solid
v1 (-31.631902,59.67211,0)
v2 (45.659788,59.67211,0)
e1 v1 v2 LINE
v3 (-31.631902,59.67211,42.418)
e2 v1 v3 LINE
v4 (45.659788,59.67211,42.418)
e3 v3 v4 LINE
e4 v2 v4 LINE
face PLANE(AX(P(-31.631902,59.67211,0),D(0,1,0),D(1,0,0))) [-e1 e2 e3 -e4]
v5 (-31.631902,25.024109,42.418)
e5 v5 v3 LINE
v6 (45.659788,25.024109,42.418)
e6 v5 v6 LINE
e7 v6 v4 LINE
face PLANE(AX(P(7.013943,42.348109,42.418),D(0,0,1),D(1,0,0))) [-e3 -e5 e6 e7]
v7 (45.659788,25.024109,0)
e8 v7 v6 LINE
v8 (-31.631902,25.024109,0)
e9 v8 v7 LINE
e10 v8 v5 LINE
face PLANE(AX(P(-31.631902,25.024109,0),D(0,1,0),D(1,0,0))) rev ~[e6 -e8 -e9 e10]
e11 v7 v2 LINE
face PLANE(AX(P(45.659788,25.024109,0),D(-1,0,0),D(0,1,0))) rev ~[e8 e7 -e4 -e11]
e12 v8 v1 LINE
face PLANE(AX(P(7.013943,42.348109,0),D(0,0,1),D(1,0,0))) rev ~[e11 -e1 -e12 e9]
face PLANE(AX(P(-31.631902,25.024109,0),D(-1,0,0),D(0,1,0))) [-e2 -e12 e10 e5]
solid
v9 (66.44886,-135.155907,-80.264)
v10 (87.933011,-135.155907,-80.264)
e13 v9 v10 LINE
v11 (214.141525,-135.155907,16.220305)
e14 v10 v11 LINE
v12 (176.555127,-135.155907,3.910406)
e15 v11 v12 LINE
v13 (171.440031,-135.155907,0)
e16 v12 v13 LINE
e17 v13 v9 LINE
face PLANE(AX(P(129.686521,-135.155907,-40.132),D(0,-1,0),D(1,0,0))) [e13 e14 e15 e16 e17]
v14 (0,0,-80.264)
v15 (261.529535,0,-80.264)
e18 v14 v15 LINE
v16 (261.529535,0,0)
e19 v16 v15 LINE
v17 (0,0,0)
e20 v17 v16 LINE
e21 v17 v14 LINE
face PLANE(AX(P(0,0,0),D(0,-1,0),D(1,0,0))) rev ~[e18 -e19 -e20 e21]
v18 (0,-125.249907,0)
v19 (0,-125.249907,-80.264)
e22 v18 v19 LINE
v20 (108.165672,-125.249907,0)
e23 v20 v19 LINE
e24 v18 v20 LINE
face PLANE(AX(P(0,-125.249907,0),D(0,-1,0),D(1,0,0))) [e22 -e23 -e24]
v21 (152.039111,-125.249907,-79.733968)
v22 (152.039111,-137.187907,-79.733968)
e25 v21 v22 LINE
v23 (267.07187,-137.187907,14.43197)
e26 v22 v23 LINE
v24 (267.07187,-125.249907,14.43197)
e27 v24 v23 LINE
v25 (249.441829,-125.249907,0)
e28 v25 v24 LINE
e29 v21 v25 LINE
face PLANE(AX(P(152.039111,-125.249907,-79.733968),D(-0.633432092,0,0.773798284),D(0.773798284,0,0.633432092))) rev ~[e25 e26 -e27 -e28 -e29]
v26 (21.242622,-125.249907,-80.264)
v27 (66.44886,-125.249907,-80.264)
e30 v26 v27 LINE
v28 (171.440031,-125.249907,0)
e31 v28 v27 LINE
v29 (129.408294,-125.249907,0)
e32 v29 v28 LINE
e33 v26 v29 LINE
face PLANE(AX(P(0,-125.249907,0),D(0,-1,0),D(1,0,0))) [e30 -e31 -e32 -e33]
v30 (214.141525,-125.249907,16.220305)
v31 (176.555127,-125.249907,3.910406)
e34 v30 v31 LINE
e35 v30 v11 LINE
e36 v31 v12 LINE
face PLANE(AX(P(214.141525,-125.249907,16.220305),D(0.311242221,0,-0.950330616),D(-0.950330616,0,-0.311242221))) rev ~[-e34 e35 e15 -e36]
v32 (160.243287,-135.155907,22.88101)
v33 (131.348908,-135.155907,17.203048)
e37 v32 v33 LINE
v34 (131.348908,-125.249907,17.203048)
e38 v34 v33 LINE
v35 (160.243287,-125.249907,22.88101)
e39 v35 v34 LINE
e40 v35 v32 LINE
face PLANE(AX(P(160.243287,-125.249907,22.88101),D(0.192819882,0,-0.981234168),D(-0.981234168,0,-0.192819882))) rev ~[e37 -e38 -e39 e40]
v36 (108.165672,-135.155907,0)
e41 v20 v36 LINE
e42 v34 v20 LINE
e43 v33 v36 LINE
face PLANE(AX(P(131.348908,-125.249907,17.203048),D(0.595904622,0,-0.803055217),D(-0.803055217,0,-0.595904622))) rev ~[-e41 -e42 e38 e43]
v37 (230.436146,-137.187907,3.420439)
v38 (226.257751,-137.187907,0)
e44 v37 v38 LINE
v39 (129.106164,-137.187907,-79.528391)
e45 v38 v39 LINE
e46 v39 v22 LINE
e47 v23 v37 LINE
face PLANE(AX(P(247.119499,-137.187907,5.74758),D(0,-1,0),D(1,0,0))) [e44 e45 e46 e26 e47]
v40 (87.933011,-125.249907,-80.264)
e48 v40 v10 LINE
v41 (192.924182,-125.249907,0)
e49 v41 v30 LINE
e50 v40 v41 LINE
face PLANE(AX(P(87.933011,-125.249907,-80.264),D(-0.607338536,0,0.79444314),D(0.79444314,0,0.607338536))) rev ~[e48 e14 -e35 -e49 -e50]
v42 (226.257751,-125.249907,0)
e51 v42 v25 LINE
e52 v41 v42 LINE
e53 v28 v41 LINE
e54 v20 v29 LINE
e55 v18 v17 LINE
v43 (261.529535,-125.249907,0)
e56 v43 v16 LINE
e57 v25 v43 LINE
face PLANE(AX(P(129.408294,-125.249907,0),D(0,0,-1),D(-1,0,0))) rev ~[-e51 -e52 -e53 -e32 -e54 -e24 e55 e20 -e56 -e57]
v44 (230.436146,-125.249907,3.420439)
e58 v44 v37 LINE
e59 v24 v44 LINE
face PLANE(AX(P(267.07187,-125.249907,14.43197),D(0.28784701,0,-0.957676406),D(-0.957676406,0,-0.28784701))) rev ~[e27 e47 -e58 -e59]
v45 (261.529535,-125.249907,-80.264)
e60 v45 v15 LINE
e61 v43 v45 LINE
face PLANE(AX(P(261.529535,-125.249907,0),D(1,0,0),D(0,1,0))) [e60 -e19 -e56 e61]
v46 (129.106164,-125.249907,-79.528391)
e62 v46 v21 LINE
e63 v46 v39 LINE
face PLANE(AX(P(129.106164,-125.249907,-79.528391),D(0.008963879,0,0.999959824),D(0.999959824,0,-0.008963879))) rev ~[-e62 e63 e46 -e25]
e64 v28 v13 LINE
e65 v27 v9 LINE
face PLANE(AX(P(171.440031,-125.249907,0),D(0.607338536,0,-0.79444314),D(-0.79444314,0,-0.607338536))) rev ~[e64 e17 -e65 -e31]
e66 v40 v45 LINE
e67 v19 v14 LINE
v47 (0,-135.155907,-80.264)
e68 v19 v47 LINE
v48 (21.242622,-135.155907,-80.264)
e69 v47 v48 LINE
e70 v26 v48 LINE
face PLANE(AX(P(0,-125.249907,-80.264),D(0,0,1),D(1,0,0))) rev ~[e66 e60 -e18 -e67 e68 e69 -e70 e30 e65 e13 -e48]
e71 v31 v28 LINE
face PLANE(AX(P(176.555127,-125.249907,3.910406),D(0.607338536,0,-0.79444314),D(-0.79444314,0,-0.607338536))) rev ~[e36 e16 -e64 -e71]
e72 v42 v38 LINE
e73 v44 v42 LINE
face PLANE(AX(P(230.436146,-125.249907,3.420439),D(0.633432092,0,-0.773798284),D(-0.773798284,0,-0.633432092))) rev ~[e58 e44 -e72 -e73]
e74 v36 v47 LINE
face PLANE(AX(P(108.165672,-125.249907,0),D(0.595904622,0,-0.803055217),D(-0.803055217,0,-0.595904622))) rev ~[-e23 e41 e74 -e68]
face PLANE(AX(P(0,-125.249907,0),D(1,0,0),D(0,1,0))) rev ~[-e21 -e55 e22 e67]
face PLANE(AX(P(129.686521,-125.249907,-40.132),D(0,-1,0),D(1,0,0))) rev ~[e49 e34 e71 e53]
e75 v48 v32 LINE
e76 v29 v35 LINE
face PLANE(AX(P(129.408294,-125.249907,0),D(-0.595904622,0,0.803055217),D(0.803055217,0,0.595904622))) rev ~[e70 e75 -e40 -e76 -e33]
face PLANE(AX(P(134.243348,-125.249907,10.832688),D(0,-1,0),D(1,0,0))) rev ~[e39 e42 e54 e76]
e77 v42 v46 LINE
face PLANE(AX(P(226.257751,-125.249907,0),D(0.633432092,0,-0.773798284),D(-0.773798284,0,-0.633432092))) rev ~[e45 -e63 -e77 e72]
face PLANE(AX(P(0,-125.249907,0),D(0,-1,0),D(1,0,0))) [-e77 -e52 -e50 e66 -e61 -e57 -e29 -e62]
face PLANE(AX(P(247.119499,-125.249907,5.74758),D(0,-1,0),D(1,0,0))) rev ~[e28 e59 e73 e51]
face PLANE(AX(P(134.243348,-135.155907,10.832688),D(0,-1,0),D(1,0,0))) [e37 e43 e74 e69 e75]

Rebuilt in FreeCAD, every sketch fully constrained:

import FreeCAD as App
import Part
import Sketcher
from FreeCAD import Vector
Q = App.Units.Quantity


def add_polygon(sketch, points):
    """Adds a closed chain of lines whose ends are joined by coincident constraints."""
    first, n = sketch.GeometryCount, len(points)
    for a, b in zip(points, points[1:] + points[:1]):
        sketch.addGeometry(Part.LineSegment(App.Vector(*a, 0), App.Vector(*b, 0)), False)
    for i in range(n):
        sketch.addConstraint(Sketcher.Constraint("Coincident", first + i, 2, first + (i + 1) % n, 1))

doc = App.newDocument("Part")
body = doc.addObject("PartDesign::Body", "Body")

sketch1 = body.newObject("Sketcher::SketchObject", "Sketch")
sketch1.AttachmentSupport = (doc.getObject("XY_Plane"), [""])
sketch1.MapMode = "FlatFace"
add_polygon(sketch1, [(0, 0), (0, -125), (262, -125), (262, 0)])
sketch1.addConstraint([
    Sketcher.Constraint("Vertical", 0),
    Sketcher.Constraint("Horizontal", 1),
    Sketcher.Constraint("Vertical", 2),
    Sketcher.Constraint("Horizontal", 3),
    Sketcher.Constraint("Coincident", 3, 2, -1, 1),
    Sketcher.Constraint("DistanceX", 1, 1, 1, 2, 261.529535),
    Sketcher.Constraint("DistanceY", 0, 2, 0, 1, 125.249907),
])
pad1 = body.newObject("PartDesign::Pad", "Pad")
pad1.Profile = sketch1
pad1.Length = Q("3.16 in")
pad1.Reversed = True

sketch2 = body.newObject("Sketcher::SketchObject", "Sketch001")
sketch2.AttachmentSupport = (doc.getObject("XZ_Plane"), [""])
sketch2.MapMode = "FlatFace"
sketch2.AttachmentOffset = App.Placement(Vector(0, 0, 125.249907), App.Rotation())
add_polygon(sketch2, [(108, 0), (0, -80), (21, -80), (129, 0)])
sketch2.addConstraint([
    Sketcher.Constraint("Horizontal", 1),
    Sketcher.Constraint("Horizontal", 3),
    Sketcher.Constraint("PointOnObject", 0, 2, -2),
    Sketcher.Constraint("PointOnObject", 2, 2, -1),
    Sketcher.Constraint("Parallel", 0, 2),
    Sketcher.Constraint("DistanceY", 0, 2, -1, 1, Q("3.16 in")),
    Sketcher.Constraint("DistanceX", 1, 1, 1, 2, 21.242622),
    Sketcher.Constraint("DistanceX", 1, 2, 3, 2, 86.92305),
])
pad2 = body.newObject("PartDesign::Pad", "Pad001")
pad2.Profile = sketch2
pad2.Length = Q("0.39 in")

sketch3 = body.newObject("Sketcher::SketchObject", "Sketch002")
sketch3.AttachmentSupport = (doc.getObject("XZ_Plane"), [""])
sketch3.MapMode = "FlatFace"
sketch3.AttachmentOffset = App.Placement(Vector(0, 0, 125.249907), App.Rotation())
add_polygon(sketch3, [(131, 17), (108, 0), (129, 0), (160, 23)])
add_polygon(sketch3, [(171, 0), (66, -80), (88, -80), (214, 16), (177, 4)])
sketch3.addConstraint([
    Sketcher.Constraint("Horizontal", 1),
    Sketcher.Constraint("Horizontal", 5),
    Sketcher.Constraint("PointOnObject", 0, 2, -1),
    Sketcher.Constraint("PointOnObject", 8, 2, -1),
    Sketcher.Constraint("Parallel", 0, 2),
    Sketcher.Constraint("Parallel", 4, 6),
    Sketcher.Constraint("Parallel", 6, 8),
    Sketcher.Constraint("DistanceY", 4, 2, -1, 1, Q("3.16 in")),
    Sketcher.Constraint("DistanceX", 0, 2, 2, 2, Q("2.0502998 in")),
    Sketcher.Constraint("Distance", 2, 38.397102),
    Sketcher.Constraint("DistanceX", 5, 1, 5, 2, 21.484151),
    Sketcher.Constraint("DistanceX", 7, 2, 6, 2, 37.586398),
    Sketcher.Constraint("DistanceY", 7, 2, 6, 2, 12.309899),
    Sketcher.Constraint("DistanceX", 1, 1, 1, 2, 21.242622),
    Sketcher.Constraint("DistanceX", -1, 1, 4, 2, 66.44886),
    Sketcher.Constraint("DistanceX", 3, 2, 2, 2, 28.894379),
    Sketcher.Constraint("DistanceX", 4, 2, 3, 2, 64.900048),
    Sketcher.Constraint("DistanceX", 1, 2, 6, 2, 84.733231),
])
pad3 = body.newObject("PartDesign::Pad", "Pad002")
pad3.Profile = sketch3
pad3.Length = Q("0.39 in")

sketch4 = body.newObject("Sketcher::SketchObject", "Sketch003")
sketch4.AttachmentSupport = (doc.getObject("XZ_Plane"), [""])
sketch4.MapMode = "FlatFace"
sketch4.AttachmentOffset = App.Placement(Vector(0, 0, 125.249907), App.Rotation())
add_polygon(sketch4, [(230.436146, 3.420439), (226.257751, 0), (129.106164, -79.528391), (152.039111, -79.733968), (267.07187, 14.43197)])
sketch4.addConstraint([
    Sketcher.Constraint("PointOnObject", 0, 2, -1),
    Sketcher.Constraint("Distance", 0, 5.399851),
    Sketcher.Constraint("Distance", 2, 22.933868),
    Sketcher.Constraint("Distance", 3, 148.659878),
    Sketcher.Constraint("DistanceX", -1, 1, 0, 2, 226.257751),
    Sketcher.Constraint("DistanceY", 1, 2, -1, 1, 79.528391),
    Sketcher.Constraint("DistanceX", -1, 1, 2, 2, 152.039111),
    Sketcher.Constraint("DistanceX", -1, 1, 3, 2, 267.07187),
    Sketcher.Constraint("DistanceY", -1, 1, 3, 2, 14.43197),
    Sketcher.Constraint("DistanceY", -1, 1, 4, 2, 3.420439),
])
pad4 = body.newObject("PartDesign::Pad", "Pad003")
pad4.Profile = sketch4
pad4.Length = Q("0.47 in")
body2 = doc.addObject("PartDesign::Body", "Body001")

sketch5 = body2.newObject("Sketcher::SketchObject", "Sketch004")
sketch5.AttachmentSupport = (doc.getObject("XY_Plane001"), [""])
sketch5.MapMode = "FlatFace"
add_polygon(sketch5, [(-32, 60), (-32, 25), (46, 25), (46, 60)])
sketch5.addConstraint([
    Sketcher.Constraint("Vertical", 0),
    Sketcher.Constraint("Horizontal", 1),
    Sketcher.Constraint("Vertical", 2),
    Sketcher.Constraint("Horizontal", 3),
    Sketcher.Constraint("DistanceY", 0, 2, 0, 1, 34.648001),
    Sketcher.Constraint("DistanceX", 1, 1, 1, 2, 77.29169),
    Sketcher.Constraint("DistanceX", 0, 2, -1, 1, 31.631902),
    Sketcher.Constraint("DistanceY", -1, 1, 0, 2, 25.024109),
])
pad5 = body2.newObject("PartDesign::Pad", "Pad004")
pad5.Profile = sketch5
pad5.Length = Q("1.67 in")

doc.recompute()
